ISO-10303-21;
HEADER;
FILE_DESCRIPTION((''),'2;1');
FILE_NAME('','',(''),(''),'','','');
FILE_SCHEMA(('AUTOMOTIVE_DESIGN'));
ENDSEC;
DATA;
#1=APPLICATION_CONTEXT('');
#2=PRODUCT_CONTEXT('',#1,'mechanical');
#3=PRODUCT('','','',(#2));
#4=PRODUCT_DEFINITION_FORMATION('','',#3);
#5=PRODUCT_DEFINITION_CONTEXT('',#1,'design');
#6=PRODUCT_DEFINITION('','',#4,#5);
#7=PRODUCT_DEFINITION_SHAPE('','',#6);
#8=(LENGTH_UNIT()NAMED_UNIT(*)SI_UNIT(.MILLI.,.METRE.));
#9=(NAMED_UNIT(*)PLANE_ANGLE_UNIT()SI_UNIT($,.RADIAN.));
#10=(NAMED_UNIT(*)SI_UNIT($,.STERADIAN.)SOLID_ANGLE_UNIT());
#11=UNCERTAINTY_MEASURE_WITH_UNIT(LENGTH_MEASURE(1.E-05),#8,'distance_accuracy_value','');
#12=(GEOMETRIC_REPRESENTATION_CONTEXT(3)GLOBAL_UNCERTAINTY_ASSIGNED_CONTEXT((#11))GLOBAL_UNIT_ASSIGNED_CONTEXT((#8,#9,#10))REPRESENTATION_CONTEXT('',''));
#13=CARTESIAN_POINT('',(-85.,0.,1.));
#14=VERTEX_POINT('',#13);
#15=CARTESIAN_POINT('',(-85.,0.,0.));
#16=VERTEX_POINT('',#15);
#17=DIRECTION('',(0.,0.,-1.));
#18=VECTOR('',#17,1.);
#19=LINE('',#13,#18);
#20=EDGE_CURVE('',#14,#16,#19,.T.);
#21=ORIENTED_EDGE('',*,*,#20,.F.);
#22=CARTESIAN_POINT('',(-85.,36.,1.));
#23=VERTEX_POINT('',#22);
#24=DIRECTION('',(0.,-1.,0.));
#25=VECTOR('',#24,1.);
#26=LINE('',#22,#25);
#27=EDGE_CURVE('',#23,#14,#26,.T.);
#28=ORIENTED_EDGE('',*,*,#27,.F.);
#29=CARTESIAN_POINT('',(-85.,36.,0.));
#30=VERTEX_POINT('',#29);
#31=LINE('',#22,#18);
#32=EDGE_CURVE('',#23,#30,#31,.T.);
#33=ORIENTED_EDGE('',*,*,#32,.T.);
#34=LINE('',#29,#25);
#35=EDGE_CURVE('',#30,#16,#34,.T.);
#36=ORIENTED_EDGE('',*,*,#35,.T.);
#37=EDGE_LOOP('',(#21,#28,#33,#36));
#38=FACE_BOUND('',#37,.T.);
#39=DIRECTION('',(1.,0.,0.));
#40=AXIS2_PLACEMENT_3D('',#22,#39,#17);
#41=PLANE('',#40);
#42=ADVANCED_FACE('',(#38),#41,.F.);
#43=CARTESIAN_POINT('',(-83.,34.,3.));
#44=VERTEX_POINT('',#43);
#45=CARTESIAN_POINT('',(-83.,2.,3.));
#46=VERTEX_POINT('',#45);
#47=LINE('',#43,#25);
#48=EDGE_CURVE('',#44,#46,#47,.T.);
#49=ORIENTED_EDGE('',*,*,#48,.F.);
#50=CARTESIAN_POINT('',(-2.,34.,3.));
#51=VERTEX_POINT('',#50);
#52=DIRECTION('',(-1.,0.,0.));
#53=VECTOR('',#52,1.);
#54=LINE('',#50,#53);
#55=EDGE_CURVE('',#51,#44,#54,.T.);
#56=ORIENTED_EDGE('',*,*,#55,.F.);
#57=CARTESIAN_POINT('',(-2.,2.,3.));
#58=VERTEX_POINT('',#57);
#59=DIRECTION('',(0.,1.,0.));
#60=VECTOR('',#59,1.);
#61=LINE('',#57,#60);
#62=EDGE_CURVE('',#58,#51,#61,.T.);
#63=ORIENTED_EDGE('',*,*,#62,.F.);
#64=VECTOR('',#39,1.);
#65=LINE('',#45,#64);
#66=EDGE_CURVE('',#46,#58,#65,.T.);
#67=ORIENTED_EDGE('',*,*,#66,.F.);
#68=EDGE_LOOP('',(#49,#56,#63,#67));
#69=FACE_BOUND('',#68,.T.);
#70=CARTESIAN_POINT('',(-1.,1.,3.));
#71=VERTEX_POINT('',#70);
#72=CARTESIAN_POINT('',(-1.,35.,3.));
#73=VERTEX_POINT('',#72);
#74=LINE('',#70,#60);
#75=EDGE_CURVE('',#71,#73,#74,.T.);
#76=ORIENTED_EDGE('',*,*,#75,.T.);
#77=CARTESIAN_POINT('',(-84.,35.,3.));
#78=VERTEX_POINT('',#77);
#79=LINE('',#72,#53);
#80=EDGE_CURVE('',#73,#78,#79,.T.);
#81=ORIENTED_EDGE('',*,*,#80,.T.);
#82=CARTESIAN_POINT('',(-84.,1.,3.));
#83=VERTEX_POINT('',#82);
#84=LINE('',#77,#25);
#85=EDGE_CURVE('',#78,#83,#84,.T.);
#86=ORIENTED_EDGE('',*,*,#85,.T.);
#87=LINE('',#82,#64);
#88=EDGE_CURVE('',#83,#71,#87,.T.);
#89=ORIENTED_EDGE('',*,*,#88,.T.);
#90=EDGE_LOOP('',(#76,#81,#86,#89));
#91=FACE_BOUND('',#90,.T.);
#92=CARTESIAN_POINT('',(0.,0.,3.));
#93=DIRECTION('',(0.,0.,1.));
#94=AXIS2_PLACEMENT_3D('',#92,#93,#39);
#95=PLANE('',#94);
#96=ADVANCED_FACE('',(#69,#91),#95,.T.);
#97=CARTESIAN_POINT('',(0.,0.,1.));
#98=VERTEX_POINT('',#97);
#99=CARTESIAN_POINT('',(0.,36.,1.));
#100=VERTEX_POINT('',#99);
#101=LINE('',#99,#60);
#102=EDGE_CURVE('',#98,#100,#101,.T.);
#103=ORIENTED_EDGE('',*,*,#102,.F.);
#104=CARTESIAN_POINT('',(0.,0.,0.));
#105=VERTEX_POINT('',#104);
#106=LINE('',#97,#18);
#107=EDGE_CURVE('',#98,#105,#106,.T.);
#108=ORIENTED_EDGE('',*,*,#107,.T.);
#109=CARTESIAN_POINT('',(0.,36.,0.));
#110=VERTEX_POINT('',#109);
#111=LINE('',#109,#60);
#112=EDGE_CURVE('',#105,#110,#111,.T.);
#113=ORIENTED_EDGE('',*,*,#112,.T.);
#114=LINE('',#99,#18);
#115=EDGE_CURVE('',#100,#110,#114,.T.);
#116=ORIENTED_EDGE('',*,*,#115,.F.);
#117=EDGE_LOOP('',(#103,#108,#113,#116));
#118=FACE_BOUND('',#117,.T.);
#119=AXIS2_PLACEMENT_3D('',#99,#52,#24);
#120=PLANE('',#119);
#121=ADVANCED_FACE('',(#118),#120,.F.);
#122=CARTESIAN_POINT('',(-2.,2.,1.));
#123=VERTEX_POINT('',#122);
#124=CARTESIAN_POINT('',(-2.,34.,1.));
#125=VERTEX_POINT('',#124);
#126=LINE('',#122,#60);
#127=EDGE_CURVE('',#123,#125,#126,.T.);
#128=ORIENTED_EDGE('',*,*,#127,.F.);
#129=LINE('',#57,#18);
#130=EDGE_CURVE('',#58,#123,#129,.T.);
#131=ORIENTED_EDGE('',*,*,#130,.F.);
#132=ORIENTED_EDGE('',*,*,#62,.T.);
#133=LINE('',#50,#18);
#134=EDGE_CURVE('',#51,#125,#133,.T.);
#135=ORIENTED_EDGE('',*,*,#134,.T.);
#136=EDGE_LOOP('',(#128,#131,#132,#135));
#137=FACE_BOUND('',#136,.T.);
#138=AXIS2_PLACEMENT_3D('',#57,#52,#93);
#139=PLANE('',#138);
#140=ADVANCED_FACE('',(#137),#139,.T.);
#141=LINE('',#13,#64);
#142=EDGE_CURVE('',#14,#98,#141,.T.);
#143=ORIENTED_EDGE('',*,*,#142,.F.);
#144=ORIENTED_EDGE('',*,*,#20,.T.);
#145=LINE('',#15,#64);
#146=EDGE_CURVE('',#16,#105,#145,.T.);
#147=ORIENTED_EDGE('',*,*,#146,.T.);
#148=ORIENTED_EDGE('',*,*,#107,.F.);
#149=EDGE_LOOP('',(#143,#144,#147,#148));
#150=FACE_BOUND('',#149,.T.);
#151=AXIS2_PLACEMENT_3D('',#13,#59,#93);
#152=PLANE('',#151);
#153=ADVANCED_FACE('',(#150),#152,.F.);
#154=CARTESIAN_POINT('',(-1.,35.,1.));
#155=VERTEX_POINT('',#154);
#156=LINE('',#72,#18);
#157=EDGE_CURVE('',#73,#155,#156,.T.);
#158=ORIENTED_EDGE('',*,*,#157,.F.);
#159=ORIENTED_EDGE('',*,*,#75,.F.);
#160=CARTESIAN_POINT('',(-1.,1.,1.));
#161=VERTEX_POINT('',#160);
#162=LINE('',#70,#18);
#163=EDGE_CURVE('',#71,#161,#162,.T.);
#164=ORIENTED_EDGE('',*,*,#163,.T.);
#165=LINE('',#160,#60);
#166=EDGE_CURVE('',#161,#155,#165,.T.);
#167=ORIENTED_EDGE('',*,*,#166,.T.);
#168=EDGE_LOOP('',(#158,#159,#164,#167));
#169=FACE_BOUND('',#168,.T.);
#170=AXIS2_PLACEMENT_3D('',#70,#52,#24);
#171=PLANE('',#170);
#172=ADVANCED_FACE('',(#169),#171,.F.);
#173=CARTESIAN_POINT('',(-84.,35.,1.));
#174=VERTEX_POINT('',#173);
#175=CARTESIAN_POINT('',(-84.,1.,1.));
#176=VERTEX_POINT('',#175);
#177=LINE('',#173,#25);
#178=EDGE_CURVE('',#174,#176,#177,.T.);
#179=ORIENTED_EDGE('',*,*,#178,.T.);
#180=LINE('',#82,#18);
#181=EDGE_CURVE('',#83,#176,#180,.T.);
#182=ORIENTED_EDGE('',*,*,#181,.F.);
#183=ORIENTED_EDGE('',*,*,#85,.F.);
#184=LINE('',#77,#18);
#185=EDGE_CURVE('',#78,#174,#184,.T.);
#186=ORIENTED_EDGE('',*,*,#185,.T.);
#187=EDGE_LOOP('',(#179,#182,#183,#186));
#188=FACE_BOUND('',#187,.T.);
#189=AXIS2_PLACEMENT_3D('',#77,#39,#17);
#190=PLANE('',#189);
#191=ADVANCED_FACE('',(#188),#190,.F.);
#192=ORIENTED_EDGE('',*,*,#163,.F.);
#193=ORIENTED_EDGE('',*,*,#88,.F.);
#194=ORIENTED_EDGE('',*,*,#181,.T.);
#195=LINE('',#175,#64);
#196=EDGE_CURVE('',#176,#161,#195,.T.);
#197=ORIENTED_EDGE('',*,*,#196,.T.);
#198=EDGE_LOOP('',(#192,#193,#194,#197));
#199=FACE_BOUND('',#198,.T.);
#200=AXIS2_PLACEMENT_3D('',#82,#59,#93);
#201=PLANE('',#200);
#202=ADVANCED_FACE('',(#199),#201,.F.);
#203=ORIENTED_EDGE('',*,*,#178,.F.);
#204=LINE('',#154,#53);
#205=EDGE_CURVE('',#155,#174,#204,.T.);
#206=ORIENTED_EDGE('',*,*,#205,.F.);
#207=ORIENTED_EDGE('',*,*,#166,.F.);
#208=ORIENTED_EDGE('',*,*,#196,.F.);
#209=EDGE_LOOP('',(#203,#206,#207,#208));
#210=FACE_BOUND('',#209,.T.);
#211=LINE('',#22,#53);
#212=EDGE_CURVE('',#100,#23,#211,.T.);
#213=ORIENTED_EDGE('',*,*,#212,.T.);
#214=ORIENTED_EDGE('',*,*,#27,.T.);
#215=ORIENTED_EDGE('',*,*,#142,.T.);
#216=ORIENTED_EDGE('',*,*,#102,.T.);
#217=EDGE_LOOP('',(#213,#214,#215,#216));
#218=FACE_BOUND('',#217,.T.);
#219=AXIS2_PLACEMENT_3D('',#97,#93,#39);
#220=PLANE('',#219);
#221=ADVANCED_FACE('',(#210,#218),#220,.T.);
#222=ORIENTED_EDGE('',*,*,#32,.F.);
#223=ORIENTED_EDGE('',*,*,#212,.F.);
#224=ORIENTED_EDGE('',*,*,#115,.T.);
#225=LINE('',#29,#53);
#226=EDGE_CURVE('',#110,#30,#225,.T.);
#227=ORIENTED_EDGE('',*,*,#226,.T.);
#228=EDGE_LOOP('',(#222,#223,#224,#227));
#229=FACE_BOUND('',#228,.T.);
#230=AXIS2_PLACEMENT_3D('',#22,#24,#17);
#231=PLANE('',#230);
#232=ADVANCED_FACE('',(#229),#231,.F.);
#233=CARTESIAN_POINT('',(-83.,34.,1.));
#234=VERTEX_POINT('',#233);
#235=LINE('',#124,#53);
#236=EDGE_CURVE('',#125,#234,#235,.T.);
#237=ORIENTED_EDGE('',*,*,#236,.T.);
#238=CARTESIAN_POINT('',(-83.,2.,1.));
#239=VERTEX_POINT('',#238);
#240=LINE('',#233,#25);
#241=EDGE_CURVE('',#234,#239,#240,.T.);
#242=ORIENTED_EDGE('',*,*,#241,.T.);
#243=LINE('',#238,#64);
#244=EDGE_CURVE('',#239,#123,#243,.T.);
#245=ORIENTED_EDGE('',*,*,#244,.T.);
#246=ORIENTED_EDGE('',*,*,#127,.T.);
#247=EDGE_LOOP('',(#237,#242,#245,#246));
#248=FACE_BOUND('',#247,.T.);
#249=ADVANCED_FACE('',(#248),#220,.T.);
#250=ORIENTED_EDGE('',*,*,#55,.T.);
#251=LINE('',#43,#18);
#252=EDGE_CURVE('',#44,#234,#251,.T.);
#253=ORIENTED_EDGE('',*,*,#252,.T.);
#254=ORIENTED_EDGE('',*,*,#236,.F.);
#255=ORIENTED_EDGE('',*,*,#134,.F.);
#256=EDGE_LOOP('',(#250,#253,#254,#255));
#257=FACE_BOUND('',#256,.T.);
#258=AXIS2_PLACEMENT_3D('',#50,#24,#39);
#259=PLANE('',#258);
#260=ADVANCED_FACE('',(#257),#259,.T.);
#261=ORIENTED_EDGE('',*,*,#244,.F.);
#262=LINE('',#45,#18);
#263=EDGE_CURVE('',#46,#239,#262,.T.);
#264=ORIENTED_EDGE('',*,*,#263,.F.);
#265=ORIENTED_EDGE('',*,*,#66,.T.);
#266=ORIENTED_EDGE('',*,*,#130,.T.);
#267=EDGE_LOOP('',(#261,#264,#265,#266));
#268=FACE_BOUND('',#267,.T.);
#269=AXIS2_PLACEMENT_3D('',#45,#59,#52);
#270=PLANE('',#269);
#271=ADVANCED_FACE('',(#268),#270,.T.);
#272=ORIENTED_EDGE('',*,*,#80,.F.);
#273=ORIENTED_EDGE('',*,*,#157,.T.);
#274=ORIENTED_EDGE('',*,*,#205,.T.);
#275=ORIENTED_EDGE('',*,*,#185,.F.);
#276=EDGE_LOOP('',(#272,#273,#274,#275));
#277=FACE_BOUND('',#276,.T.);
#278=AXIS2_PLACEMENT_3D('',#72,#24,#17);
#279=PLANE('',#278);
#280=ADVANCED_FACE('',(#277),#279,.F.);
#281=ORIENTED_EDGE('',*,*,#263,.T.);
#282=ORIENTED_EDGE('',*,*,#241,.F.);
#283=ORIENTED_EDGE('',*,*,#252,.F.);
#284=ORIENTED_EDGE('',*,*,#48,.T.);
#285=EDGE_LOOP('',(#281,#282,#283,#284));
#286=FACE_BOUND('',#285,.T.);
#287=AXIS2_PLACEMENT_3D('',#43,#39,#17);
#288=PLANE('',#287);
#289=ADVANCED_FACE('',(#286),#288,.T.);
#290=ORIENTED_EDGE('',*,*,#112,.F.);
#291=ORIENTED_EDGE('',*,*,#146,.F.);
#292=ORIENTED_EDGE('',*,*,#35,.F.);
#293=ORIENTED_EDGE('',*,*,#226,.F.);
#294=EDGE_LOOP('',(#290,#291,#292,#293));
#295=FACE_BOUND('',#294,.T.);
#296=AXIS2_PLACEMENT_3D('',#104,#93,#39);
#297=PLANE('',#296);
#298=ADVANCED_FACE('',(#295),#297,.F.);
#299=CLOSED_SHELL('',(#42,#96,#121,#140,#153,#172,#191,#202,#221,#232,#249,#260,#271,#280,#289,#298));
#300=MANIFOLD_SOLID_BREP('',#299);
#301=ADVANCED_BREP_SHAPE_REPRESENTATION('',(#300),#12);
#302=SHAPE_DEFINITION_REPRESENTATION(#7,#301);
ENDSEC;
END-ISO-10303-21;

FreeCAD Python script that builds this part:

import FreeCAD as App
import Part
import Sketcher


def add_polygon(sketch, points):
    """Adds a closed chain of lines whose ends are joined by coincident constraints."""
    first, n = sketch.GeometryCount, len(points)
    for a, b in zip(points, points[1:] + points[:1]):
        sketch.addGeometry(Part.LineSegment(App.Vector(*a, 0), App.Vector(*b, 0)), False)
    for i in range(n):
        sketch.addConstraint(Sketcher.Constraint("Coincident", first + i, 2, first + (i + 1) % n, 1))

doc = App.newDocument("Part")
body = doc.addObject("PartDesign::Body", "Body")

sketch1 = body.newObject("Sketcher::SketchObject", "Sketch")
sketch1.AttachmentSupport = (doc.getObject("XY_Plane"), [""])
sketch1.MapMode = "FlatFace"
add_polygon(sketch1, [(-85, 36), (-85, 0), (0, 0), (0, 36)])
sketch1.addConstraint([
    Sketcher.Constraint("Vertical", 0),
    Sketcher.Constraint("Horizontal", 1),
    Sketcher.Constraint("Vertical", 2),
    Sketcher.Constraint("Horizontal", 3),
    Sketcher.Constraint("Coincident", 1, 2, -1, 1),
    Sketcher.Constraint("DistanceX", 1, 1, 1, 2, 85.0),
    Sketcher.Constraint("DistanceY", 0, 2, 0, 1, 36.0),
])
pad1 = body.newObject("PartDesign::Pad", "Pad")
pad1.Profile = sketch1
pad1.Length = 1

sketch2 = body.newObject("Sketcher::SketchObject", "Sketch001")
sketch2.AttachmentSupport = (doc.getObject("XY_Plane"), [""])
sketch2.MapMode = "FlatFace"
sketch2.AttachmentOffset = App.Placement(App.Vector(0, 0, 1), App.Rotation())
add_polygon(sketch2, [(-84, 35), (-84, 1), (-1, 1), (-1, 35)])
add_polygon(sketch2, [(-2, 2), (-83, 2), (-83, 34), (-2, 34)])
sketch2.addConstraint([
    Sketcher.Constraint("Vertical", 0),
    Sketcher.Constraint("Horizontal", 1),
    Sketcher.Constraint("Vertical", 2),
    Sketcher.Constraint("Horizontal", 3),
    Sketcher.Constraint("Horizontal", 4),
    Sketcher.Constraint("Vertical", 5),
    Sketcher.Constraint("Horizontal", 6),
    Sketcher.Constraint("Vertical", 7),
    Sketcher.Constraint("DistanceX", 1, 1, 1, 2, 83.0),
    Sketcher.Constraint("DistanceX", 4, 2, 4, 1, 81.0),
    Sketcher.Constraint("DistanceY", 0, 2, 0, 1, 34.0),
    Sketcher.Constraint("DistanceY", 5, 1, 5, 2, 32.0),
    Sketcher.Constraint("DistanceX", 0, 2, -1, 1, 84.0),
    Sketcher.Constraint("DistanceY", -1, 1, 0, 2, 1.0),
    Sketcher.Constraint("DistanceX", 4, 2, -1, 1, 83.0),
    Sketcher.Constraint("DistanceY", -1, 1, 4, 2, 2.0),
])
pad2 = body.newObject("PartDesign::Pad", "Pad001")
pad2.Profile = sketch2
pad2.Length = 2

doc.recompute()
